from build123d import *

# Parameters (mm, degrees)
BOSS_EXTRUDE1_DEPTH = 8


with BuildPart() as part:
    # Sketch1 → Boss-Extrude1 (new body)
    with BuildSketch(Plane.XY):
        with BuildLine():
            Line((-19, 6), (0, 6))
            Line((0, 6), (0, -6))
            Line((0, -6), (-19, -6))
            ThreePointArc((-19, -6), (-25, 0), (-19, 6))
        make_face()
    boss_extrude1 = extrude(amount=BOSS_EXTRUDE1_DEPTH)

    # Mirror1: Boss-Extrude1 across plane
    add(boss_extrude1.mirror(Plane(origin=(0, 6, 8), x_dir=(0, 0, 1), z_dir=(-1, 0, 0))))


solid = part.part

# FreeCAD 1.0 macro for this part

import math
import FreeCAD as App
import Part
import Sketcher

V = App.Vector

doc = App.newDocument("Part")
body = doc.addObject("PartDesign::Body", "Body")

# Sketch on XY plane
sketch1 = doc.addObject("Sketcher::SketchObject", "Sketch")
body.addObject(sketch1)
sketch1.AttachmentSupport = (doc.XY_Plane, [""])
sketch1.MapMode = "FlatFace"
sketch1.addGeometry([
    Part.LineSegment(V(0, 6, 0), V(-19, 6, 0)),
    Part.ArcOfCircle(Part.Circle(V(-19, 0, 0), V(0, 0, 1), 6), math.radians(90), math.radians(270)),
    Part.LineSegment(V(-19, -6, 0), V(0, -6, 0)),
    Part.LineSegment(V(0, -6, 0), V(0, 6, 0)),
], False)
sketch1.addConstraint([
    Sketcher.Constraint("Tangent", 0, 2, 1, 1),
    Sketcher.Constraint("Tangent", 1, 2, 2, 1),
    Sketcher.Constraint("Coincident", 2, 2, 3, 1),
    Sketcher.Constraint("Coincident", 3, 2, 0, 1),
    Sketcher.Constraint("Horizontal", 0),
    Sketcher.Constraint("Horizontal", 2),
    Sketcher.Constraint("Vertical", 3),
    Sketcher.Constraint("Symmetric", 2, 2, 3, 2, -1, 1),
    Sketcher.Constraint("Radius", 1, 6.0),
    Sketcher.Constraint("DistanceX", 0, 2, 0, 1, 19.0),
])
pad1 = doc.addObject("PartDesign::Pad", "Pad")
body.addObject(pad1)
pad1.Profile = sketch1
pad1.Length = 8
doc.recompute()

mirrored = doc.addObject("PartDesign::Mirrored", "Mirrored")
body.addObject(mirrored)
mirrored.Originals = [pad1]
mirrored.MirrorPlane = (doc.YZ_Plane, [""])
body.Tip = mirrored

doc.recompute()
